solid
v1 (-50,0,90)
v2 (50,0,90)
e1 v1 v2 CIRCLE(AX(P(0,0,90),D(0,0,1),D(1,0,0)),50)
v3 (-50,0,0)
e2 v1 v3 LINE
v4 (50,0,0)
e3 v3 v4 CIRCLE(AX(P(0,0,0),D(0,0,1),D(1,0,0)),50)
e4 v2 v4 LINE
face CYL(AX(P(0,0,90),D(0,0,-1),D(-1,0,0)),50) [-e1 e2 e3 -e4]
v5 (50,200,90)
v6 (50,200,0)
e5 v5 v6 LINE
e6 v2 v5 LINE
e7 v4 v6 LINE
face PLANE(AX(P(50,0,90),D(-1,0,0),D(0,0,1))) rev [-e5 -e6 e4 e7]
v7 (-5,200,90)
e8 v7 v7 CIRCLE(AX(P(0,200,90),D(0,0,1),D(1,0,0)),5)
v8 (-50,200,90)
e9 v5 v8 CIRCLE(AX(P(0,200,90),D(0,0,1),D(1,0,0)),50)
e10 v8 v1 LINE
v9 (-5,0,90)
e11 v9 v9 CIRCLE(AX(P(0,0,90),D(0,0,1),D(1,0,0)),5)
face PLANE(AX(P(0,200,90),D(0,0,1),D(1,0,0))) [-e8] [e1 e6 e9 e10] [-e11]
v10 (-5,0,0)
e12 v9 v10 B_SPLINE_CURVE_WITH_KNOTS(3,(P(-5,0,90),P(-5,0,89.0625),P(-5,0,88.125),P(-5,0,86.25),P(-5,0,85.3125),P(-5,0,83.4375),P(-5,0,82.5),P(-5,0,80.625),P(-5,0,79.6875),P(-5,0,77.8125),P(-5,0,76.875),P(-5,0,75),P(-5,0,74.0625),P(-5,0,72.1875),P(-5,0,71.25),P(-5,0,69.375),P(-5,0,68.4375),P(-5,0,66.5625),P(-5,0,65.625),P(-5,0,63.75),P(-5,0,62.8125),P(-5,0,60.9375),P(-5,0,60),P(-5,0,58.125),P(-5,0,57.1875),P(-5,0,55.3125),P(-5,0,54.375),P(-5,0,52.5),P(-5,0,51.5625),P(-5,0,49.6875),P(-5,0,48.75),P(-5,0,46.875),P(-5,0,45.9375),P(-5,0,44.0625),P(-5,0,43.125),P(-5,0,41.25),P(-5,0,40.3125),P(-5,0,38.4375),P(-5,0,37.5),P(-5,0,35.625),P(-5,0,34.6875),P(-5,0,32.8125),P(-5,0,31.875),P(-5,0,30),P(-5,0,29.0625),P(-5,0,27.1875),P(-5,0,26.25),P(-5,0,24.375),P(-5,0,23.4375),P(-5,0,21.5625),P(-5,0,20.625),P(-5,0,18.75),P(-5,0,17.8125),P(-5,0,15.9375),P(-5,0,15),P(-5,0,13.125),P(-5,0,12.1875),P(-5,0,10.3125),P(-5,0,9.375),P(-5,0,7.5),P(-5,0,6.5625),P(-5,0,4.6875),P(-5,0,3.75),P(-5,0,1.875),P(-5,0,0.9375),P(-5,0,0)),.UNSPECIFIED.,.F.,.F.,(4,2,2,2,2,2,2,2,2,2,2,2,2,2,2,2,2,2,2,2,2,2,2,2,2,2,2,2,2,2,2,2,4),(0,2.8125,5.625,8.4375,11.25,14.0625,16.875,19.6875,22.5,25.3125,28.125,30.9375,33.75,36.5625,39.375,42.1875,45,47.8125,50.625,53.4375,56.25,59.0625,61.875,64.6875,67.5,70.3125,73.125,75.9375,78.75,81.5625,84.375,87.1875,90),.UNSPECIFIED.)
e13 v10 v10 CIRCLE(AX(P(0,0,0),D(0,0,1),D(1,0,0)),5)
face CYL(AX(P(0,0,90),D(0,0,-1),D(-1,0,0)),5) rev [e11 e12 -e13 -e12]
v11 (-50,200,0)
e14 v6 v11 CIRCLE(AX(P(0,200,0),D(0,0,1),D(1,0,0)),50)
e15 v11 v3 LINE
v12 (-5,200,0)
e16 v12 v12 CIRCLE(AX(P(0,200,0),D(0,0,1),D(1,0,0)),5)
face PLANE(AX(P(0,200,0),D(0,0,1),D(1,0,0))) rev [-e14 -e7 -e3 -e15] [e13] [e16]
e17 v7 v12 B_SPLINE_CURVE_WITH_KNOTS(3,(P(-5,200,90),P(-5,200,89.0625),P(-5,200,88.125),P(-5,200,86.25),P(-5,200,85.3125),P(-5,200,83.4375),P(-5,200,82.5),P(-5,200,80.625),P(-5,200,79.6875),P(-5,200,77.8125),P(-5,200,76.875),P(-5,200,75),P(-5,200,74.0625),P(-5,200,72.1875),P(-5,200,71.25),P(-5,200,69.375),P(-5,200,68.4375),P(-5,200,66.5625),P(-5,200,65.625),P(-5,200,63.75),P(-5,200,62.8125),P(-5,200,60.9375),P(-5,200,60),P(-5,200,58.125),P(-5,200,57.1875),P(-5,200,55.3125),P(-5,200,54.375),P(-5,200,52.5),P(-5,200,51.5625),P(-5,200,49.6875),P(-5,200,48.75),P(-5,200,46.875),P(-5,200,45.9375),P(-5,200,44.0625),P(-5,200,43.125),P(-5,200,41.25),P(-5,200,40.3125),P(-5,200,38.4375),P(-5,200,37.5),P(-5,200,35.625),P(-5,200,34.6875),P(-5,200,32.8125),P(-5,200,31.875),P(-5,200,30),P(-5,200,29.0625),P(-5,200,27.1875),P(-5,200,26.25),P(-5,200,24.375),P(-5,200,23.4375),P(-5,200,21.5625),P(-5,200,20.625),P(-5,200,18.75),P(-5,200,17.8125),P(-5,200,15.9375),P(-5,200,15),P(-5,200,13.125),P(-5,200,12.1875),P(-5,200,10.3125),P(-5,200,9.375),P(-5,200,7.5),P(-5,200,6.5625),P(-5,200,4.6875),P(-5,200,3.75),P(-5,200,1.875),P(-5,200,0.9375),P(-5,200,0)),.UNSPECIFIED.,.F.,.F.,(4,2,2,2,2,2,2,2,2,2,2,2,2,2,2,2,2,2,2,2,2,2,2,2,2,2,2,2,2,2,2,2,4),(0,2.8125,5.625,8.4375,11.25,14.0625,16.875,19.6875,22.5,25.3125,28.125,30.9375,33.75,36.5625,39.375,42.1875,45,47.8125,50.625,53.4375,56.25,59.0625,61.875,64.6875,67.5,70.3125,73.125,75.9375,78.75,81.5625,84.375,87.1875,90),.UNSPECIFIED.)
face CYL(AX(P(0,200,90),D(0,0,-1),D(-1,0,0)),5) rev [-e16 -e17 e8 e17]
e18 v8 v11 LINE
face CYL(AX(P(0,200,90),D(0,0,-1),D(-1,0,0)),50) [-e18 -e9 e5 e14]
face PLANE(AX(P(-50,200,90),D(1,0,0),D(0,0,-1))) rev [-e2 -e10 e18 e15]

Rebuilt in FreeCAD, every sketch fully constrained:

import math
import FreeCAD as App
import Part
import Sketcher
from FreeCAD import Vector
Q = App.Units.Quantity

doc = App.newDocument("Part")
body = doc.addObject("PartDesign::Body", "Body")

sketch1 = body.newObject("Sketcher::SketchObject", "Sketch")
sketch1.AttachmentSupport = (doc.getObject("XY_Plane"), [""])
sketch1.MapMode = "FlatFace"
sketch1.addGeometry(Part.LineSegment(Vector(-50, 200, 0), Vector(-50, 0, 0)), False)
sketch1.addGeometry(Part.ArcOfCircle(Part.Circle(Vector(0, 0, 0), Vector(0, 0, 1), 50), math.radians(180), math.radians(360)), False)
sketch1.addGeometry(Part.LineSegment(Vector(50, 0, 0), Vector(50, 200, 0)), False)
sketch1.addGeometry(Part.ArcOfCircle(Part.Circle(Vector(0, 200, 0), Vector(0, 0, 1), 50), math.radians(0), math.radians(180)), False)
sketch1.addGeometry(Part.Circle(Vector(0, 0, 0), Vector(0, 0, 1), 5), False)
sketch1.addGeometry(Part.Circle(Vector(0, 200, 0), Vector(0, 0, 1), 5), False)
sketch1.addConstraint(Sketcher.Constraint("Tangent", 0, 2, 1, 1))
sketch1.addConstraint(Sketcher.Constraint("Tangent", 1, 2, 2, 1))
sketch1.addConstraint(Sketcher.Constraint("Tangent", 2, 2, 3, 1))
sketch1.addConstraint(Sketcher.Constraint("Tangent", 3, 2, 0, 1))
sketch1.addConstraint(Sketcher.Constraint("Vertical", 0))
sketch1.addConstraint(Sketcher.Constraint("Vertical", 2))
sketch1.addConstraint(Sketcher.Constraint("Coincident", 1, 3, -1, 1))
sketch1.addConstraint(Sketcher.Constraint("Coincident", 4, 3, -1, 1))
sketch1.addConstraint(Sketcher.Constraint("Coincident", 5, 3, 3, 3))
sketch1.addConstraint(Sketcher.Constraint("Equal", 4, 5))
sketch1.addConstraint(Sketcher.Constraint("Diameter", 4, Q("10 mm")))
sketch1.addConstraint(Sketcher.Constraint("Radius", 1, Q("50 mm")))
sketch1.addConstraint(Sketcher.Constraint("DistanceY", 0, 2, 0, 1, Q("200 mm")))
pad1 = body.newObject("PartDesign::Pad", "Pad")
pad1.Profile = sketch1
pad1.Length = 90

doc.recompute()
